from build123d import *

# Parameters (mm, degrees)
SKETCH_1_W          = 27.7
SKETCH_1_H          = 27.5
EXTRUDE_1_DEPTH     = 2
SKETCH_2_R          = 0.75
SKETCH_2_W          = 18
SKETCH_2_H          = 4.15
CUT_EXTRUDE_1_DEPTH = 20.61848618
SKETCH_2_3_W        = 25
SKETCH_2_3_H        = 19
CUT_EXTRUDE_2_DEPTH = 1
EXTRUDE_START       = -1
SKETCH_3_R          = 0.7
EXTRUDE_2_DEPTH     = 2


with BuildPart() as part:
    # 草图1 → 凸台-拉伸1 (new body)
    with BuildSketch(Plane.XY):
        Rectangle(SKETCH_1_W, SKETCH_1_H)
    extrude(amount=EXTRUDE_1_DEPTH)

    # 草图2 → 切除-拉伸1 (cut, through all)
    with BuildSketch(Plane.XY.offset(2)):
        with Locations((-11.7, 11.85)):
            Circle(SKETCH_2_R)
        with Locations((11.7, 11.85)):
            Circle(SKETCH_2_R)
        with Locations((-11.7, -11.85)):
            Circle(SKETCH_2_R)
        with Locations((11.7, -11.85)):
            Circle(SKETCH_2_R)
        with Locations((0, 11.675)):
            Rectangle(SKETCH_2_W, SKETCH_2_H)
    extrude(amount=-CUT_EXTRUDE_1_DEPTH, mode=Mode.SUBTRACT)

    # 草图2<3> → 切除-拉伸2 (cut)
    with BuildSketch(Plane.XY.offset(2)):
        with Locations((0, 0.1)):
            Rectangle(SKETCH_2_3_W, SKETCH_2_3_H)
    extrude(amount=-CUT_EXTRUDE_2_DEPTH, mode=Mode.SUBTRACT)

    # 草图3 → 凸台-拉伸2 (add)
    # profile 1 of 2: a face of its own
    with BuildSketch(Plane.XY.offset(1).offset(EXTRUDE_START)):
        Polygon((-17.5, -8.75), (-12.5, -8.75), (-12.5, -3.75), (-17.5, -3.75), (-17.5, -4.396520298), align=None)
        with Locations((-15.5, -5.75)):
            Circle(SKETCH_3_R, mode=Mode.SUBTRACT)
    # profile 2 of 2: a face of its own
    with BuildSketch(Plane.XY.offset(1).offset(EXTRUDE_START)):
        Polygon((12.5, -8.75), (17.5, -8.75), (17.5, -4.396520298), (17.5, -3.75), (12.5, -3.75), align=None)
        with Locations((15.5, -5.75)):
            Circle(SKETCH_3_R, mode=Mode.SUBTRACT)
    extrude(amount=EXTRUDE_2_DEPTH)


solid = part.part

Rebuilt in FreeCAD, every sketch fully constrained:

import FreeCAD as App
import Part
import Sketcher

V = App.Vector
Q = App.Units.Quantity


def add_polygon(sketch, points):
    """Adds a closed chain of lines whose ends are joined by coincident constraints."""
    first, n = sketch.GeometryCount, len(points)
    for a, b in zip(points, points[1:] + points[:1]):
        sketch.addGeometry(Part.LineSegment(App.Vector(*a, 0), App.Vector(*b, 0)), False)
    for i in range(n):
        sketch.addConstraint(Sketcher.Constraint("Coincident", first + i, 2, first + (i + 1) % n, 1))

doc = App.newDocument("Part")
body = doc.addObject("PartDesign::Body", "Body")

# Sketch on XY plane
sketch1 = body.newObject("Sketcher::SketchObject", "Sketch")
sketch1.AttachmentSupport = (doc.getObject("XY_Plane"), [""])
sketch1.MapMode = "FlatFace"
add_polygon(sketch1, [(-14, 14), (-14, -14), (14, -14), (14, 14)])  # lines 0-3
sketch1.addConstraint([
    Sketcher.Constraint("Vertical", 0),
    Sketcher.Constraint("Horizontal", 1),
    Sketcher.Constraint("Vertical", 2),
    Sketcher.Constraint("Horizontal", 3),
    Sketcher.Constraint("Symmetric", 0, 2, 2, 2, -1, 1),
    Sketcher.Constraint("DistanceX", 1, 1, 1, 2, Q("27.7 mm")),
    Sketcher.Constraint("DistanceY", 0, 2, 0, 1, Q("27.5 mm")),
])
pad1 = body.newObject("PartDesign::Pad", "Pad")
pad1.Profile = sketch1
pad1.Length = 2

# Sketch on XY plane
sketch2 = body.newObject("Sketcher::SketchObject", "Sketch001")
sketch2.AttachmentSupport = (doc.getObject("XY_Plane"), [""])
sketch2.MapMode = "FlatFace"
sketch2.AttachmentOffset = App.Placement(V(0, 0, 2), App.Rotation())
sketch2.addGeometry(Part.Circle(V(-11.7, 11.8, 0), V(0, 0, 1), 0.8), False)  # 0
sketch2.addGeometry(Part.Circle(V(11.7, 11.8, 0), V(0, 0, 1), 0.8), False)  # 1
sketch2.addGeometry(Part.Circle(V(-11.7, -11.8, 0), V(0, 0, 1), 0.8), False)  # 2
sketch2.addGeometry(Part.Circle(V(11.7, -11.8, 0), V(0, 0, 1), 0.8), False)  # 3
add_polygon(sketch2, [(-9, 13.8), (-9, 9.6), (9, 9.6), (9, 13.8)])  # lines 4-7
sketch2.addConstraint([
    Sketcher.Constraint("Vertical", 4),
    Sketcher.Constraint("Horizontal", 5),
    Sketcher.Constraint("Vertical", 6),
    Sketcher.Constraint("Horizontal", 7),
    Sketcher.Constraint("Equal", 0, 1),
    Sketcher.Constraint("Equal", 1, 2),
    Sketcher.Constraint("Equal", 2, 3),
    Sketcher.Constraint("Symmetric", 1, 3, 2, 3, -1, 1),
    Sketcher.Constraint("Symmetric", 0, 3, 3, 3, -1, 1),
    Sketcher.Constraint("Symmetric", 0, 3, 1, 3, -2),
    Sketcher.Constraint("Diameter", 0, Q("1.5 mm")),
    Sketcher.Constraint("DistanceX", 5, 1, 5, 2, Q("18 mm")),
    Sketcher.Constraint("DistanceX", 4, 2, -1, 1, Q("9 mm")),
    Sketcher.Constraint("DistanceY", 4, 2, 4, 1, Q("4.15 mm")),
    Sketcher.Constraint("DistanceX", 0, 3, -1, 1, Q("11.7 mm")),
    Sketcher.Constraint("DistanceY", -1, 1, 4, 2, Q("9.6 mm")),
    Sketcher.Constraint("DistanceY", 2, 3, 0, 3, Q("23.7 mm")),
])
pocket1 = body.newObject("PartDesign::Pocket", "Pocket")
pocket1.Profile = sketch2
pocket1.Type = "ThroughAll"

# Sketch on XY plane
sketch3 = body.newObject("Sketcher::SketchObject", "Sketch002")
sketch3.AttachmentSupport = (doc.getObject("XY_Plane"), [""])
sketch3.MapMode = "FlatFace"
sketch3.AttachmentOffset = App.Placement(V(0, 0, 2), App.Rotation())
add_polygon(sketch3, [(-12, 10), (-12, -9), (12, -9), (12, 10)])  # lines 0-3
sketch3.addConstraint([
    Sketcher.Constraint("Vertical", 0),
    Sketcher.Constraint("Horizontal", 1),
    Sketcher.Constraint("Vertical", 2),
    Sketcher.Constraint("Horizontal", 3),
    Sketcher.Constraint("DistanceX", 1, 1, 1, 2, Q("25 mm")),
    Sketcher.Constraint("DistanceY", 0, 2, 0, 1, Q("19 mm")),
    Sketcher.Constraint("DistanceX", 0, 2, -1, 1, Q("12.5 mm")),
    Sketcher.Constraint("DistanceY", 0, 2, -1, 1, Q("9.4 mm")),
])
pocket2 = body.newObject("PartDesign::Pocket", "Pocket001")
pocket2.Profile = sketch3
pocket2.Length = 1

# Sketch on XY plane
sketch4 = body.newObject("Sketcher::SketchObject", "Sketch003")
sketch4.AttachmentSupport = (doc.getObject("XY_Plane"), [""])
sketch4.MapMode = "FlatFace"
add_polygon(sketch4, [(-17.5, -8.8), (-12.5, -8.8), (-12.5, -3.8), (-17.5, -3.8)])  # lines 0-3
sketch4.addGeometry(Part.Circle(V(-15.5, -5.8, 0), V(0, 0, 1), 0.7), False)  # 4
add_polygon(sketch4, [(12.5, -8.8), (17.5, -8.8), (17.5, -3.8), (12.5, -3.8)])  # lines 5-8
sketch4.addGeometry(Part.Circle(V(15.5, -5.8, 0), V(0, 0, 1), 0.7), False)  # 9
sketch4.addConstraint([
    Sketcher.Constraint("Horizontal", 0),
    Sketcher.Constraint("Vertical", 1),
    Sketcher.Constraint("Horizontal", 2),
    Sketcher.Constraint("Vertical", 3),
    Sketcher.Constraint("Horizontal", 5),
    Sketcher.Constraint("Vertical", 6),
    Sketcher.Constraint("Horizontal", 7),
    Sketcher.Constraint("Vertical", 8),
    Sketcher.Constraint("Equal", 4, 9),
    Sketcher.Constraint("Symmetric", 4, 3, 9, 3, -2),
    Sketcher.Constraint("Symmetric", 3, 2, 5, 2, -2),
    Sketcher.Constraint("Symmetric", 1, 2, 7, 2, -2),
    Sketcher.Constraint("Equal", 7, 1),
    Sketcher.Constraint("Diameter", 4, Q("1.4 mm")),
    Sketcher.Constraint("DistanceX", 0, 1, 0, 2, Q("5 mm")),
    Sketcher.Constraint("DistanceX", 4, 3, 9, 3, Q("31 mm")),
    Sketcher.Constraint("DistanceX", 4, 3, 0, 2, Q("3 mm")),
    Sketcher.Constraint("DistanceY", 0, 2, 4, 3, Q("3 mm")),
    Sketcher.Constraint("DistanceY", 4, 3, -1, 1, Q("5.75 mm")),
])
pad2 = body.newObject("PartDesign::Pad", "Pad001")
pad2.Profile = sketch4
pad2.Length = 2

doc.recompute()
